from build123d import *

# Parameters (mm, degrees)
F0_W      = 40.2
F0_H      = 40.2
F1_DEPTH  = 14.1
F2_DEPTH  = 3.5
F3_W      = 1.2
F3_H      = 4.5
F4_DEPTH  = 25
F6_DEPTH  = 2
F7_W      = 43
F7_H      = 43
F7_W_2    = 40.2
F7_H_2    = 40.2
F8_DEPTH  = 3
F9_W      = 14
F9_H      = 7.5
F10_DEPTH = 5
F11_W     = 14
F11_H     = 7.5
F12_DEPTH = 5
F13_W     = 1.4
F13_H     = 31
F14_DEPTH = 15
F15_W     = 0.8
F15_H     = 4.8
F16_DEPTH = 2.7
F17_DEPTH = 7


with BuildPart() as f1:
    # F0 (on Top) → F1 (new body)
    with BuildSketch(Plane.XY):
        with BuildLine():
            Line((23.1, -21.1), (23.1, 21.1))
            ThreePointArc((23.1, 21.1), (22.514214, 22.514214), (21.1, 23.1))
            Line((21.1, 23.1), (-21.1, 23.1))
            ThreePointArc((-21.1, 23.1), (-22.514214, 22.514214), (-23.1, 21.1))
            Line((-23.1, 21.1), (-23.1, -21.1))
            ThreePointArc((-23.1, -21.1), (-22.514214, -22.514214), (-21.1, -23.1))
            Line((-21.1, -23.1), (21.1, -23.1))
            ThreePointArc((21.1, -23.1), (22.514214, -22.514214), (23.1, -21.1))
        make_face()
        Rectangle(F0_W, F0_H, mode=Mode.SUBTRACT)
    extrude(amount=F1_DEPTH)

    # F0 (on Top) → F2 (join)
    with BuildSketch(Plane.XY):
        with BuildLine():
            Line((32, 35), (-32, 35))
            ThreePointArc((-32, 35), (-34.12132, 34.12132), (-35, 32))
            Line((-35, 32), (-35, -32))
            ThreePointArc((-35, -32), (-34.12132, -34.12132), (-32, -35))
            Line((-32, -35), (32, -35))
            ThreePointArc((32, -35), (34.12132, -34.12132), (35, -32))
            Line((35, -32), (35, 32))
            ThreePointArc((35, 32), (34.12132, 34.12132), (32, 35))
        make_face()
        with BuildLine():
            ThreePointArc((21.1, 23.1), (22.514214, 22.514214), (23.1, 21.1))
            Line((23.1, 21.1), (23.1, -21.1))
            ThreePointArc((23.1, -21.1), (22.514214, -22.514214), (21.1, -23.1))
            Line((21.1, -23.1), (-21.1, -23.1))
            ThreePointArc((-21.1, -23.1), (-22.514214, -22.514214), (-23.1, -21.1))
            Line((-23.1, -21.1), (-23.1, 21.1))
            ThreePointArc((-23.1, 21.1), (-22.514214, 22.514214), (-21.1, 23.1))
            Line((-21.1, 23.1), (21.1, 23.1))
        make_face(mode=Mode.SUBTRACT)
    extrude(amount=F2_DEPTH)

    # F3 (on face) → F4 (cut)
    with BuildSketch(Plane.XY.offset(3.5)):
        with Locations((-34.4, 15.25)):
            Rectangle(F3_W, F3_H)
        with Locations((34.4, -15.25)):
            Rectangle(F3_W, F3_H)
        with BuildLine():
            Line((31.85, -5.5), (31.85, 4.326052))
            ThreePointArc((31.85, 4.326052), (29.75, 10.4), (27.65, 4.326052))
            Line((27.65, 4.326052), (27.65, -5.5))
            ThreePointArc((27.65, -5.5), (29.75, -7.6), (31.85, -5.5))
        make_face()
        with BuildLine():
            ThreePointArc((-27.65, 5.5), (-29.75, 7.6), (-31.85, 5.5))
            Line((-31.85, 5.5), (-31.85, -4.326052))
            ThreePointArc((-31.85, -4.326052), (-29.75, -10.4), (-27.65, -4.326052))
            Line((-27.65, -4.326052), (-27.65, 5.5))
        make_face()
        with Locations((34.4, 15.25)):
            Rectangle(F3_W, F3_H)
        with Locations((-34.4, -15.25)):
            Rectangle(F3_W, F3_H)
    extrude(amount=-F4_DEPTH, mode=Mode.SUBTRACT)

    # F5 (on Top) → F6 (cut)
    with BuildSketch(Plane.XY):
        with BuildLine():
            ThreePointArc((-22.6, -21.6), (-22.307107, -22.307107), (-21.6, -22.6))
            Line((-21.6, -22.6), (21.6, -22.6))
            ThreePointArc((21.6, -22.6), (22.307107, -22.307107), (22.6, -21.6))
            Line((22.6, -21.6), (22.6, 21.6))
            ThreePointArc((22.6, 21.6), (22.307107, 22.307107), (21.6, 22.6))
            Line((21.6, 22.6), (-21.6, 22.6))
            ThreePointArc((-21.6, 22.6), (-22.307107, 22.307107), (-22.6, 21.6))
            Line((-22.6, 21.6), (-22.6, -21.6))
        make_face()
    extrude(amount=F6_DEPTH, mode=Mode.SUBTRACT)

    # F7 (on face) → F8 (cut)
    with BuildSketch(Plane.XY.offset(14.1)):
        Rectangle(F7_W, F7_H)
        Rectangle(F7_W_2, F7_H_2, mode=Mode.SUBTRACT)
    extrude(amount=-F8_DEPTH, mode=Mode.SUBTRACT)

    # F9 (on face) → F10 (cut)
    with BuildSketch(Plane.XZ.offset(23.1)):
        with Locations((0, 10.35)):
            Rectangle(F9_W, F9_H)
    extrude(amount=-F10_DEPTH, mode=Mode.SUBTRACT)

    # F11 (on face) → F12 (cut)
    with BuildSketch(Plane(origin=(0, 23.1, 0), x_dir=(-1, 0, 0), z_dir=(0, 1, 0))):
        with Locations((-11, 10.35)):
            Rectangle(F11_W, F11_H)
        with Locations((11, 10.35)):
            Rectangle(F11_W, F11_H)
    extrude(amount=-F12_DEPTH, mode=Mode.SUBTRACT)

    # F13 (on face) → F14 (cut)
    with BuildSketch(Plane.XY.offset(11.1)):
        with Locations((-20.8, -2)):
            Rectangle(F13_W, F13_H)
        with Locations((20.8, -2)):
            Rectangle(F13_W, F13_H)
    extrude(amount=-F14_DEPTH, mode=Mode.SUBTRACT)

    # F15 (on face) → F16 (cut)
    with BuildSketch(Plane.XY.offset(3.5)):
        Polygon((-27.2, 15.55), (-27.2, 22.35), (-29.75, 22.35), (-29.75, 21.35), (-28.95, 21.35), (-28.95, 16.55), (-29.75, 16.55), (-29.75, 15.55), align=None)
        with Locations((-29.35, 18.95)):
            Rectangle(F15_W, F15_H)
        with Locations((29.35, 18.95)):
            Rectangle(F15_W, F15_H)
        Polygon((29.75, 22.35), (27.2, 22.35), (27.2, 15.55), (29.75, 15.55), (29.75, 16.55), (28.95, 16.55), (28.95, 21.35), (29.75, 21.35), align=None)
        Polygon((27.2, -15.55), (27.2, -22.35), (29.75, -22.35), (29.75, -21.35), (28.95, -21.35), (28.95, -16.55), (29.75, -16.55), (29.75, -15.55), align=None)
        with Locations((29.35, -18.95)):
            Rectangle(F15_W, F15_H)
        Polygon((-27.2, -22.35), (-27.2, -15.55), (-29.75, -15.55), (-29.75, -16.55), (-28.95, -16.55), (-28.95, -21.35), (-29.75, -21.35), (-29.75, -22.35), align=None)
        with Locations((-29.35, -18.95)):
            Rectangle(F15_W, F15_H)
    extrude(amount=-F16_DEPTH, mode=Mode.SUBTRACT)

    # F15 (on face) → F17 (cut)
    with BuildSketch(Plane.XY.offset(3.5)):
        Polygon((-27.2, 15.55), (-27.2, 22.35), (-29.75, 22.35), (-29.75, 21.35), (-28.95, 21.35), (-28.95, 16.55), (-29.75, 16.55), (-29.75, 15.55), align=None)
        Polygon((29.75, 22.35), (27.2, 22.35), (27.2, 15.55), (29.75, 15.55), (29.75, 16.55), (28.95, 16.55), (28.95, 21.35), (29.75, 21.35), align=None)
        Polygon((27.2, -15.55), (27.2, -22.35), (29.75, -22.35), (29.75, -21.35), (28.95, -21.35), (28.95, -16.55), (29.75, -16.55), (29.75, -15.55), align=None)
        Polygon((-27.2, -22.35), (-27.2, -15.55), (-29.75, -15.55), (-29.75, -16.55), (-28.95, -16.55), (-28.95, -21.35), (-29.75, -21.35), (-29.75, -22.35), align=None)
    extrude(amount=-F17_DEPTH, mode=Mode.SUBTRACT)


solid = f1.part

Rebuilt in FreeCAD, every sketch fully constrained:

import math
import FreeCAD as App
import Part
import Sketcher
from FreeCAD import Vector
Q = App.Units.Quantity

doc = App.newDocument("Part")
params = doc.addObject("Spreadsheet::Sheet", "Params")
for row, (alias, value) in enumerate([
    ("sketch1_radius", "1.999999 mm"),
    ("sketch1_width", "42.2 mm"),
    ("sketch1_width2", "40.2 mm"),
    ("pad1_length", "14.1 mm"),
    ("sketch2_radius", "3.000001 mm"),
    ("sketch2_radius2", "1.999999 mm"),
    ("sketch2_width", "64 mm"),
    ("sketch2_width2", "42.2 mm"),
    ("pad2_length", "3.5 mm"),
    ("sketch3_radius", "3.4 mm"),
    ("sketch3_radius2", "2.1 mm"),
    ("sketch3_width", "1.2 mm"),
    ("sketch3_height", "4.5 mm"),
    ("pocket1_length", "25 mm"),
    ("sketch4_radius", "0.999999 mm"),
    ("sketch4_width", "43.2 mm"),
    ("pocket2_length", "2 mm"),
    ("sketch5_width", "43 mm"),
    ("sketch5_width2", "40.2 mm"),
    ("pocket3_length", "3 mm"),
    ("sketch6_width", "14 mm"),
    ("sketch6_height", "7.5 mm"),
    ("pocket4_length", "5 mm"),
    ("sketch7_width", "14 mm"),
    ("sketch7_height", "7.5 mm"),
    ("pocket5_length", "5 mm"),
    ("sketch8_height", "31 mm"),
    ("sketch8_width", "1.4 mm"),
    ("pocket6_length", "15 mm"),
    ("sketch9_height", "6.8 mm"),
    ("sketch9_width", "2.55 mm"),
    ("pocket7_length", "2.7 mm"),
    ("sketch10_height", "1 mm"),
    ("sketch10_width", "0.8 mm"),
    ("sketch10_height2", "6.8 mm"),
    ("sketch10_width2", "2.55 mm"),
    ("pocket8_length", "7 mm"),
], start=1):
    params.set(f"A{row}", alias)
    params.set(f"B{row}", "=" + value)
    params.setAlias(f"B{row}", alias)

body = doc.addObject("PartDesign::Body", "Body")

sketch1 = body.newObject("Sketcher::SketchObject", "Sketch")
sketch1.AttachmentSupport = (doc.getObject("XY_Plane"), [""])
sketch1.MapMode = "FlatFace"
sketch1.addGeometry([
    Part.LineSegment(Vector(23.1, -21.1, 0), Vector(23.1, 21.1, 0)),
    Part.ArcOfCircle(Part.Circle(Vector(21.1, 21.1, 0), Vector(0, 0, 1), 2), math.radians(0), math.radians(90)),
    Part.LineSegment(Vector(21.1, 23.1, 0), Vector(-21.1, 23.1, 0)),
    Part.ArcOfCircle(Part.Circle(Vector(-21.1, 21.1, 0), Vector(0, 0, 1), 2), math.radians(90), math.radians(180)),
    Part.LineSegment(Vector(-23.1, 21.1, 0), Vector(-23.1, -21.1, 0)),
    Part.ArcOfCircle(Part.Circle(Vector(-21.1, -21.1, 0), Vector(0, 0, 1), 2), math.radians(180), math.radians(270)),
    Part.LineSegment(Vector(-21.1, -23.1, 0), Vector(21.1, -23.1, 0)),
    Part.ArcOfCircle(Part.Circle(Vector(21.1, -21.1, 0), Vector(0, 0, 1), 2), math.radians(-90), math.radians(0)),
    Part.LineSegment(Vector(20.1, -20.1, 0), Vector(-20.1, -20.1, 0)),
    Part.LineSegment(Vector(-20.1, -20.1, 0), Vector(-20.1, 20.1, 0)),
    Part.LineSegment(Vector(-20.1, 20.1, 0), Vector(20.1, 20.1, 0)),
    Part.LineSegment(Vector(20.1, 20.1, 0), Vector(20.1, -20.1, 0)),
], False)
sketch1.addConstraint([
    Sketcher.Constraint("Tangent", 0, 2, 1, 1),
    Sketcher.Constraint("Tangent", 1, 2, 2, 1),
    Sketcher.Constraint("Tangent", 2, 2, 3, 1),
    Sketcher.Constraint("Tangent", 3, 2, 4, 1),
    Sketcher.Constraint("Tangent", 4, 2, 5, 1),
    Sketcher.Constraint("Tangent", 5, 2, 6, 1),
    Sketcher.Constraint("Tangent", 6, 2, 7, 1),
    Sketcher.Constraint("Tangent", 7, 2, 0, 1),
    Sketcher.Constraint("Coincident", 8, 2, 9, 1),
    Sketcher.Constraint("Coincident", 9, 2, 10, 1),
    Sketcher.Constraint("Coincident", 10, 2, 11, 1),
    Sketcher.Constraint("Coincident", 11, 2, 8, 1),
    Sketcher.Constraint("Vertical", 0),
    Sketcher.Constraint("Horizontal", 2),
    Sketcher.Constraint("Vertical", 4),
    Sketcher.Constraint("Horizontal", 6),
    Sketcher.Constraint("Horizontal", 8),
    Sketcher.Constraint("Vertical", 9),
    Sketcher.Constraint("Horizontal", 10),
    Sketcher.Constraint("Vertical", 11),
    Sketcher.Constraint("Equal", 1, 3),
    Sketcher.Constraint("Equal", 3, 5),
    Sketcher.Constraint("Equal", 5, 7),
    Sketcher.Constraint("Symmetric", 1, 3, 5, 3, -1, 1),
    Sketcher.Constraint("Symmetric", 8, 2, 10, 2, -1, 1),
    Sketcher.Constraint("Equal", 6, 0),
    Sketcher.Constraint("Equal", 10, 9),
    Sketcher.Constraint("Radius", 1, Q("1.999999 mm")),
    Sketcher.Constraint("DistanceX", 2, 2, 2, 1, Q("42.2 mm")),
    Sketcher.Constraint("DistanceX", 8, 2, 8, 1, Q("40.2 mm")),
])
sketch1.setExpression("Constraints[27]", "Params.sketch1_radius")
sketch1.setExpression("Constraints[28]", "Params.sketch1_width")
sketch1.setExpression("Constraints[29]", "Params.sketch1_width2")
pad1 = body.newObject("PartDesign::Pad", "Pad")
pad1.Profile = sketch1
pad1.setExpression("Length", "Params.pad1_length")

sketch2 = body.newObject("Sketcher::SketchObject", "Sketch001")
sketch2.AttachmentSupport = (doc.getObject("XY_Plane"), [""])
sketch2.MapMode = "FlatFace"
sketch2.addGeometry([
    Part.LineSegment(Vector(32, 35, 0), Vector(-32, 35, 0)),
    Part.ArcOfCircle(Part.Circle(Vector(-32, 32, 0), Vector(0, 0, 1), 3), math.radians(90), math.radians(180)),
    Part.LineSegment(Vector(-35, 32, 0), Vector(-35, -32, 0)),
    Part.ArcOfCircle(Part.Circle(Vector(-32, -32, 0), Vector(0, 0, 1), 3), math.radians(-180), math.radians(-90)),
    Part.LineSegment(Vector(-32, -35, 0), Vector(32, -35, 0)),
    Part.ArcOfCircle(Part.Circle(Vector(32, -32, 0), Vector(0, 0, 1), 3), math.radians(-90), math.radians(0)),
    Part.LineSegment(Vector(35, -32, 0), Vector(35, 32, 0)),
    Part.ArcOfCircle(Part.Circle(Vector(32, 32, 0), Vector(0, 0, 1), 3), math.radians(0), math.radians(90)),
    Part.LineSegment(Vector(-21.1, 23.1, 0), Vector(21.1, 23.1, 0)),
    Part.ArcOfCircle(Part.Circle(Vector(21.1, 21.1, 0), Vector(0, 0, 1), 2), math.radians(0), math.radians(90)),
    Part.LineSegment(Vector(23.1, 21.1, 0), Vector(23.1, -21.1, 0)),
    Part.ArcOfCircle(Part.Circle(Vector(21.1, -21.1, 0), Vector(0, 0, 1), 2), math.radians(-90), math.radians(0)),
    Part.LineSegment(Vector(21.1, -23.1, 0), Vector(-21.1, -23.1, 0)),
    Part.ArcOfCircle(Part.Circle(Vector(-21.1, -21.1, 0), Vector(0, 0, 1), 2), math.radians(180), math.radians(270)),
    Part.LineSegment(Vector(-23.1, -21.1, 0), Vector(-23.1, 21.1, 0)),
    Part.ArcOfCircle(Part.Circle(Vector(-21.1, 21.1, 0), Vector(0, 0, 1), 2), math.radians(90), math.radians(180)),
], False)
sketch2.addConstraint([
    Sketcher.Constraint("Tangent", 0, 2, 1, 1),
    Sketcher.Constraint("Tangent", 1, 2, 2, 1),
    Sketcher.Constraint("Tangent", 2, 2, 3, 1),
    Sketcher.Constraint("Tangent", 3, 2, 4, 1),
    Sketcher.Constraint("Tangent", 4, 2, 5, 1),
    Sketcher.Constraint("Tangent", 5, 2, 6, 1),
    Sketcher.Constraint("Tangent", 6, 2, 7, 1),
    Sketcher.Constraint("Tangent", 7, 2, 0, 1),
    Sketcher.Constraint("Tangent", 8, 2, 9, 2),
    Sketcher.Constraint("Tangent", 9, 1, 10, 1),
    Sketcher.Constraint("Tangent", 10, 2, 11, 2),
    Sketcher.Constraint("Tangent", 11, 1, 12, 1),
    Sketcher.Constraint("Tangent", 12, 2, 13, 2),
    Sketcher.Constraint("Tangent", 13, 1, 14, 1),
    Sketcher.Constraint("Tangent", 14, 2, 15, 2),
    Sketcher.Constraint("Tangent", 15, 1, 8, 1),
    Sketcher.Constraint("Horizontal", 0),
    Sketcher.Constraint("Vertical", 2),
    Sketcher.Constraint("Horizontal", 4),
    Sketcher.Constraint("Vertical", 6),
    Sketcher.Constraint("Horizontal", 8),
    Sketcher.Constraint("Vertical", 10),
    Sketcher.Constraint("Horizontal", 12),
    Sketcher.Constraint("Vertical", 14),
    Sketcher.Constraint("Equal", 1, 3),
    Sketcher.Constraint("Equal", 3, 5),
    Sketcher.Constraint("Equal", 5, 7),
    Sketcher.Constraint("Equal", 9, 11),
    Sketcher.Constraint("Equal", 11, 13),
    Sketcher.Constraint("Equal", 13, 15),
    Sketcher.Constraint("Symmetric", 1, 3, 5, 3, -1, 1),
    Sketcher.Constraint("Symmetric", 9, 3, 13, 3, -1, 1),
    Sketcher.Constraint("Equal", 4, 2),
    Sketcher.Constraint("Equal", 12, 10),
    Sketcher.Constraint("Radius", 1, Q("3.000001 mm")),
    Sketcher.Constraint("Radius", 9, Q("1.999999 mm")),
    Sketcher.Constraint("DistanceX", 0, 2, 0, 1, Q("64 mm")),
    Sketcher.Constraint("DistanceX", 8, 1, 8, 2, Q("42.2 mm")),
])
sketch2.setExpression("Constraints[34]", "Params.sketch2_radius")
sketch2.setExpression("Constraints[35]", "Params.sketch2_radius2")
sketch2.setExpression("Constraints[36]", "Params.sketch2_width")
sketch2.setExpression("Constraints[37]", "Params.sketch2_width2")
pad2 = body.newObject("PartDesign::Pad", "Pad001")
pad2.Profile = sketch2
pad2.setExpression("Length", "Params.pad2_length")

sketch3 = body.newObject("Sketcher::SketchObject", "Sketch002")
sketch3.AttachmentSupport = (doc.getObject("XY_Plane"), [""])
sketch3.MapMode = "FlatFace"
sketch3.AttachmentOffset = App.Placement(Vector(0, 0, 3.5), App.Rotation())
sketch3.addGeometry([
    Part.LineSegment(Vector(-35, 17.5, 0), Vector(-35, 13, 0)),
    Part.LineSegment(Vector(-35, 13, 0), Vector(-33.8, 13, 0)),
    Part.LineSegment(Vector(-33.8, 13, 0), Vector(-33.8, 17.5, 0)),
    Part.LineSegment(Vector(-33.8, 17.5, 0), Vector(-35, 17.5, 0)),
    Part.LineSegment(Vector(33.8, -13, 0), Vector(33.8, -17.5, 0)),
    Part.LineSegment(Vector(33.8, -17.5, 0), Vector(35, -17.5, 0)),
    Part.LineSegment(Vector(35, -17.5, 0), Vector(35, -13, 0)),
    Part.LineSegment(Vector(35, -13, 0), Vector(33.8, -13, 0)),
    Part.LineSegment(Vector(31.9, -5.5, 0), Vector(31.9, 4.3, 0)),
    Part.ArcOfCircle(Part.Circle(Vector(29.8, 7, 0), Vector(0, 0, 1), 3.4), math.radians(-52), math.radians(232)),
    Part.LineSegment(Vector(27.6, 4.3, 0), Vector(27.6, -5.5, 0)),
    Part.ArcOfCircle(Part.Circle(Vector(29.8, -5.5, 0), Vector(0, 0, 1), 2.1), math.radians(180), math.radians(360)),
    Part.ArcOfCircle(Part.Circle(Vector(-29.8, 5.5, 0), Vector(0, 0, 1), 2.1), math.radians(0), math.radians(180)),
    Part.LineSegment(Vector(-31.9, 5.5, 0), Vector(-31.9, -4.3, 0)),
    Part.ArcOfCircle(Part.Circle(Vector(-29.8, -7, 0), Vector(0, 0, 1), 3.4), math.radians(128), math.radians(412)),
    Part.LineSegment(Vector(-27.6, -4.3, 0), Vector(-27.6, 5.5, 0)),
    Part.LineSegment(Vector(33.8, 17.5, 0), Vector(33.8, 13, 0)),
    Part.LineSegment(Vector(33.8, 13, 0), Vector(35, 13, 0)),
    Part.LineSegment(Vector(35, 13, 0), Vector(35, 17.5, 0)),
    Part.LineSegment(Vector(35, 17.5, 0), Vector(33.8, 17.5, 0)),
    Part.LineSegment(Vector(-35, -13, 0), Vector(-35, -17.5, 0)),
    Part.LineSegment(Vector(-35, -17.5, 0), Vector(-33.8, -17.5, 0)),
    Part.LineSegment(Vector(-33.8, -17.5, 0), Vector(-33.8, -13, 0)),
    Part.LineSegment(Vector(-33.8, -13, 0), Vector(-35, -13, 0)),
], False)
sketch3.addConstraint([
    Sketcher.Constraint("Coincident", 0, 2, 1, 1),
    Sketcher.Constraint("Coincident", 1, 2, 2, 1),
    Sketcher.Constraint("Coincident", 2, 2, 3, 1),
    Sketcher.Constraint("Coincident", 3, 2, 0, 1),
    Sketcher.Constraint("Coincident", 4, 2, 5, 1),
    Sketcher.Constraint("Coincident", 5, 2, 6, 1),
    Sketcher.Constraint("Coincident", 6, 2, 7, 1),
    Sketcher.Constraint("Coincident", 7, 2, 4, 1),
    Sketcher.Constraint("Coincident", 8, 2, 9, 1),
    Sketcher.Constraint("Coincident", 9, 2, 10, 1),
    Sketcher.Constraint("Tangent", 10, 2, 11, 1),
    Sketcher.Constraint("Tangent", 11, 2, 8, 1),
    Sketcher.Constraint("Tangent", 12, 2, 13, 1),
    Sketcher.Constraint("Coincident", 13, 2, 14, 1),
    Sketcher.Constraint("Coincident", 14, 2, 15, 1),
    Sketcher.Constraint("Tangent", 15, 2, 12, 1),
    Sketcher.Constraint("Coincident", 16, 2, 17, 1),
    Sketcher.Constraint("Coincident", 17, 2, 18, 1),
    Sketcher.Constraint("Coincident", 18, 2, 19, 1),
    Sketcher.Constraint("Coincident", 19, 2, 16, 1),
    Sketcher.Constraint("Coincident", 20, 2, 21, 1),
    Sketcher.Constraint("Coincident", 21, 2, 22, 1),
    Sketcher.Constraint("Coincident", 22, 2, 23, 1),
    Sketcher.Constraint("Coincident", 23, 2, 20, 1),
    Sketcher.Constraint("Vertical", 0),
    Sketcher.Constraint("Horizontal", 1),
    Sketcher.Constraint("Vertical", 2),
    Sketcher.Constraint("Horizontal", 3),
    Sketcher.Constraint("Vertical", 4),
    Sketcher.Constraint("Horizontal", 5),
    Sketcher.Constraint("Vertical", 6),
    Sketcher.Constraint("Horizontal", 7),
    Sketcher.Constraint("Vertical", 8),
    Sketcher.Constraint("Vertical", 10),
    Sketcher.Constraint("Vertical", 13),
    Sketcher.Constraint("Vertical", 15),
    Sketcher.Constraint("Vertical", 16),
    Sketcher.Constraint("Horizontal", 17),
    Sketcher.Constraint("Vertical", 18),
    Sketcher.Constraint("Horizontal", 19),
    Sketcher.Constraint("Vertical", 20),
    Sketcher.Constraint("Horizontal", 21),
    Sketcher.Constraint("Vertical", 22),
    Sketcher.Constraint("Horizontal", 23),
    Sketcher.Constraint("Equal", 11, 12),
    Sketcher.Constraint("Equal", 9, 14),
    Sketcher.Constraint("Symmetric", 11, 3, 12, 3, -1, 1),
    Sketcher.Constraint("Symmetric", 9, 3, 14, 3, -1, 1),
    Sketcher.Constraint("Symmetric", 2, 2, 4, 2, -1, 1),
    Sketcher.Constraint("Symmetric", 0, 2, 6, 2, -1, 1),
    Sketcher.Constraint("Symmetric", 18, 2, 20, 2, -1, 1),
    Sketcher.Constraint("Symmetric", 16, 2, 22, 2, -1, 1),
    Sketcher.Constraint("Symmetric", 1, 2, 16, 2, -2),
    Sketcher.Constraint("Symmetric", 3, 2, 18, 2, -2),
    Sketcher.Constraint("Horizontal", 8, 2, 9, 2),
    Sketcher.Constraint("Radius", 9, Q("3.4 mm")),
    Sketcher.Constraint("Radius", 11, Q("2.1 mm")),
    Sketcher.Constraint("DistanceX", 1, 1, 1, 2, Q("1.2 mm")),
    Sketcher.Constraint("DistanceY", 0, 2, 0, 1, Q("4.5 mm")),
    Sketcher.Constraint("DistanceY", -1, 1, 9, 3, Q("7 mm")),
    Sketcher.Constraint("DistanceX", 0, 2, -1, 1, Q("35 mm")),
    Sketcher.Constraint("DistanceY", -1, 1, 0, 2, Q("13 mm")),
    Sketcher.Constraint("DistanceY", 11, 3, 12, 3, Q("11 mm")),
    Sketcher.Constraint("DistanceX", 12, 3, 9, 3, Q("59.5 mm")),
])
sketch3.setExpression("Constraints[55]", "Params.sketch3_radius")
sketch3.setExpression("Constraints[56]", "Params.sketch3_radius2")
sketch3.setExpression("Constraints[57]", "Params.sketch3_width")
sketch3.setExpression("Constraints[58]", "Params.sketch3_height")
pocket1 = body.newObject("PartDesign::Pocket", "Pocket")
pocket1.Profile = sketch3
pocket1.setExpression("Length", "Params.pocket1_length")

sketch4 = body.newObject("Sketcher::SketchObject", "Sketch003")
sketch4.AttachmentSupport = (doc.getObject("XY_Plane"), [""])
sketch4.MapMode = "FlatFace"
sketch4.addGeometry([
    Part.ArcOfCircle(Part.Circle(Vector(-21.6, -21.6, 0), Vector(0, 0, 1), 1), math.radians(180), math.radians(270)),
    Part.LineSegment(Vector(-21.6, -22.6, 0), Vector(21.6, -22.6, 0)),
    Part.ArcOfCircle(Part.Circle(Vector(21.6, -21.6, 0), Vector(0, 0, 1), 1), math.radians(-90), math.radians(0)),
    Part.LineSegment(Vector(22.6, -21.6, 0), Vector(22.6, 21.6, 0)),
    Part.ArcOfCircle(Part.Circle(Vector(21.6, 21.6, 0), Vector(0, 0, 1), 1), math.radians(0), math.radians(90)),
    Part.LineSegment(Vector(21.6, 22.6, 0), Vector(-21.6, 22.6, 0)),
    Part.ArcOfCircle(Part.Circle(Vector(-21.6, 21.6, 0), Vector(0, 0, 1), 1), math.radians(90), math.radians(180)),
    Part.LineSegment(Vector(-22.6, 21.6, 0), Vector(-22.6, -21.6, 0)),
], False)
sketch4.addConstraint([
    Sketcher.Constraint("Tangent", 0, 2, 1, 1),
    Sketcher.Constraint("Tangent", 1, 2, 2, 1),
    Sketcher.Constraint("Tangent", 2, 2, 3, 1),
    Sketcher.Constraint("Tangent", 3, 2, 4, 1),
    Sketcher.Constraint("Tangent", 4, 2, 5, 1),
    Sketcher.Constraint("Tangent", 5, 2, 6, 1),
    Sketcher.Constraint("Tangent", 6, 2, 7, 1),
    Sketcher.Constraint("Tangent", 7, 2, 0, 1),
    Sketcher.Constraint("Horizontal", 1),
    Sketcher.Constraint("Vertical", 3),
    Sketcher.Constraint("Horizontal", 5),
    Sketcher.Constraint("Vertical", 7),
    Sketcher.Constraint("Equal", 0, 2),
    Sketcher.Constraint("Equal", 2, 4),
    Sketcher.Constraint("Equal", 4, 6),
    Sketcher.Constraint("Symmetric", 0, 3, 4, 3, -1, 1),
    Sketcher.Constraint("Equal", 5, 3),
    Sketcher.Constraint("Radius", 0, Q("0.999999 mm")),
    Sketcher.Constraint("DistanceX", 1, 1, 1, 2, Q("43.2 mm")),
])
sketch4.setExpression("Constraints[17]", "Params.sketch4_radius")
sketch4.setExpression("Constraints[18]", "Params.sketch4_width")
pocket2 = body.newObject("PartDesign::Pocket", "Pocket001")
pocket2.Profile = sketch4
pocket2.setExpression("Length", "Params.pocket2_length")
pocket2.Reversed = True

sketch5 = body.newObject("Sketcher::SketchObject", "Sketch004")
sketch5.AttachmentSupport = (doc.getObject("XY_Plane"), [""])
sketch5.MapMode = "FlatFace"
sketch5.AttachmentOffset = App.Placement(Vector(0, 0, 14.1), App.Rotation())
sketch5.addGeometry([
    Part.LineSegment(Vector(-22, 22, 0), Vector(-22, -22, 0)),
    Part.LineSegment(Vector(-22, -22, 0), Vector(22, -22, 0)),
    Part.LineSegment(Vector(22, -22, 0), Vector(22, 22, 0)),
    Part.LineSegment(Vector(22, 22, 0), Vector(-22, 22, 0)),
    Part.LineSegment(Vector(20, -20, 0), Vector(-20, -20, 0)),
    Part.LineSegment(Vector(-20, -20, 0), Vector(-20, 20, 0)),
    Part.LineSegment(Vector(-20, 20, 0), Vector(20, 20, 0)),
    Part.LineSegment(Vector(20, 20, 0), Vector(20, -20, 0)),
], False)
sketch5.addConstraint([
    Sketcher.Constraint("Coincident", 0, 2, 1, 1),
    Sketcher.Constraint("Coincident", 1, 2, 2, 1),
    Sketcher.Constraint("Coincident", 2, 2, 3, 1),
    Sketcher.Constraint("Coincident", 3, 2, 0, 1),
    Sketcher.Constraint("Coincident", 4, 2, 5, 1),
    Sketcher.Constraint("Coincident", 5, 2, 6, 1),
    Sketcher.Constraint("Coincident", 6, 2, 7, 1),
    Sketcher.Constraint("Coincident", 7, 2, 4, 1),
    Sketcher.Constraint("Vertical", 0),
    Sketcher.Constraint("Horizontal", 1),
    Sketcher.Constraint("Vertical", 2),
    Sketcher.Constraint("Horizontal", 3),
    Sketcher.Constraint("Horizontal", 4),
    Sketcher.Constraint("Vertical", 5),
    Sketcher.Constraint("Horizontal", 6),
    Sketcher.Constraint("Vertical", 7),
    Sketcher.Constraint("Symmetric", 0, 2, 2, 2, -1, 1),
    Sketcher.Constraint("Symmetric", 4, 2, 6, 2, -1, 1),
    Sketcher.Constraint("Equal", 3, 0),
    Sketcher.Constraint("Equal", 6, 5),
    Sketcher.Constraint("DistanceX", 1, 1, 1, 2, Q("43 mm")),
    Sketcher.Constraint("DistanceX", 4, 2, 4, 1, Q("40.2 mm")),
])
sketch5.setExpression("Constraints[20]", "Params.sketch5_width")
sketch5.setExpression("Constraints[21]", "Params.sketch5_width2")
pocket3 = body.newObject("PartDesign::Pocket", "Pocket002")
pocket3.Profile = sketch5
pocket3.setExpression("Length", "Params.pocket3_length")

sketch6 = body.newObject("Sketcher::SketchObject", "Sketch005")
sketch6.AttachmentSupport = (doc.getObject("XZ_Plane"), [""])
sketch6.MapMode = "FlatFace"
sketch6.AttachmentOffset = App.Placement(Vector(0, 0, 23.1), App.Rotation())
sketch6.addGeometry([
    Part.LineSegment(Vector(-7, 14, 0), Vector(-7, 7, 0)),
    Part.LineSegment(Vector(-7, 7, 0), Vector(7, 7, 0)),
    Part.LineSegment(Vector(7, 7, 0), Vector(7, 14, 0)),
    Part.LineSegment(Vector(7, 14, 0), Vector(-7, 14, 0)),
], False)
sketch6.addConstraint([
    Sketcher.Constraint("Coincident", 0, 2, 1, 1),
    Sketcher.Constraint("Coincident", 1, 2, 2, 1),
    Sketcher.Constraint("Coincident", 2, 2, 3, 1),
    Sketcher.Constraint("Coincident", 3, 2, 0, 1),
    Sketcher.Constraint("Vertical", 0),
    Sketcher.Constraint("Horizontal", 1),
    Sketcher.Constraint("Vertical", 2),
    Sketcher.Constraint("Horizontal", 3),
    Sketcher.Constraint("DistanceX", 1, 1, 1, 2, Q("14 mm")),
    Sketcher.Constraint("DistanceY", 0, 2, 0, 1, Q("7.5 mm")),
    Sketcher.Constraint("DistanceX", 0, 2, -1, 1, Q("7 mm")),
    Sketcher.Constraint("DistanceY", -1, 1, 0, 2, Q("6.6 mm")),
])
sketch6.setExpression("Constraints[8]", "Params.sketch6_width")
sketch6.setExpression("Constraints[9]", "Params.sketch6_height")
pocket4 = body.newObject("PartDesign::Pocket", "Pocket003")
pocket4.Profile = sketch6
pocket4.setExpression("Length", "Params.pocket4_length")

sketch7 = body.newObject("Sketcher::SketchObject", "Sketch006")
sketch7.AttachmentSupport = (doc.getObject("XZ_Plane"), [""])
sketch7.MapMode = "FlatFace"
sketch7.AttachmentOffset = App.Placement(Vector(0, 0, -23.1), App.Rotation())
sketch7.addGeometry([
    Part.LineSegment(Vector(18, 14, 0), Vector(18, 7, 0)),
    Part.LineSegment(Vector(18, 7, 0), Vector(4, 7, 0)),
    Part.LineSegment(Vector(4, 7, 0), Vector(4, 14, 0)),
    Part.LineSegment(Vector(4, 14, 0), Vector(18, 14, 0)),
    Part.LineSegment(Vector(-4, 14, 0), Vector(-4, 7, 0)),
    Part.LineSegment(Vector(-4, 7, 0), Vector(-18, 7, 0)),
    Part.LineSegment(Vector(-18, 7, 0), Vector(-18, 14, 0)),
    Part.LineSegment(Vector(-18, 14, 0), Vector(-4, 14, 0)),
], False)
sketch7.addConstraint([
    Sketcher.Constraint("Coincident", 0, 2, 1, 1),
    Sketcher.Constraint("Coincident", 1, 2, 2, 1),
    Sketcher.Constraint("Coincident", 2, 2, 3, 1),
    Sketcher.Constraint("Coincident", 3, 2, 0, 1),
    Sketcher.Constraint("Coincident", 4, 2, 5, 1),
    Sketcher.Constraint("Coincident", 5, 2, 6, 1),
    Sketcher.Constraint("Coincident", 6, 2, 7, 1),
    Sketcher.Constraint("Coincident", 7, 2, 4, 1),
    Sketcher.Constraint("Vertical", 0),
    Sketcher.Constraint("Horizontal", 1),
    Sketcher.Constraint("Vertical", 2),
    Sketcher.Constraint("Horizontal", 3),
    Sketcher.Constraint("Vertical", 4),
    Sketcher.Constraint("Horizontal", 5),
    Sketcher.Constraint("Vertical", 6),
    Sketcher.Constraint("Horizontal", 7),
    Sketcher.Constraint("Symmetric", 1, 2, 4, 2, -2),
    Sketcher.Constraint("Symmetric", 3, 2, 6, 2, -2),
    Sketcher.Constraint("DistanceX", 1, 2, 1, 1, Q("14 mm")),
    Sketcher.Constraint("DistanceY", 0, 2, 0, 1, Q("7.5 mm")),
    Sketcher.Constraint("DistanceX", -1, 1, 0, 2, Q("18 mm")),
    Sketcher.Constraint("DistanceY", -1, 1, 0, 2, Q("6.6 mm")),
])
sketch7.setExpression("Constraints[18]", "Params.sketch7_width")
sketch7.setExpression("Constraints[19]", "Params.sketch7_height")
pocket5 = body.newObject("PartDesign::Pocket", "Pocket004")
pocket5.Profile = sketch7
pocket5.setExpression("Length", "Params.pocket5_length")
pocket5.Reversed = True

sketch8 = body.newObject("Sketcher::SketchObject", "Sketch007")
sketch8.AttachmentSupport = (doc.getObject("XY_Plane"), [""])
sketch8.MapMode = "FlatFace"
sketch8.AttachmentOffset = App.Placement(Vector(0, 0, 11.1), App.Rotation())
sketch8.addGeometry([
    Part.LineSegment(Vector(-21.5, 13.5, 0), Vector(-21.5, -17.5, 0)),
    Part.LineSegment(Vector(-21.5, -17.5, 0), Vector(-20.1, -17.5, 0)),
    Part.LineSegment(Vector(-20.1, -17.5, 0), Vector(-20.1, 13.5, 0)),
    Part.LineSegment(Vector(-20.1, 13.5, 0), Vector(-21.5, 13.5, 0)),
    Part.LineSegment(Vector(20.1, 13.5, 0), Vector(20.1, -17.5, 0)),
    Part.LineSegment(Vector(20.1, -17.5, 0), Vector(21.5, -17.5, 0)),
    Part.LineSegment(Vector(21.5, -17.5, 0), Vector(21.5, 13.5, 0)),
    Part.LineSegment(Vector(21.5, 13.5, 0), Vector(20.1, 13.5, 0)),
], False)
sketch8.addConstraint([
    Sketcher.Constraint("Coincident", 0, 2, 1, 1),
    Sketcher.Constraint("Coincident", 1, 2, 2, 1),
    Sketcher.Constraint("Coincident", 2, 2, 3, 1),
    Sketcher.Constraint("Coincident", 3, 2, 0, 1),
    Sketcher.Constraint("Coincident", 4, 2, 5, 1),
    Sketcher.Constraint("Coincident", 5, 2, 6, 1),
    Sketcher.Constraint("Coincident", 6, 2, 7, 1),
    Sketcher.Constraint("Coincident", 7, 2, 4, 1),
    Sketcher.Constraint("Vertical", 0),
    Sketcher.Constraint("Horizontal", 1),
    Sketcher.Constraint("Vertical", 2),
    Sketcher.Constraint("Horizontal", 3),
    Sketcher.Constraint("Vertical", 4),
    Sketcher.Constraint("Horizontal", 5),
    Sketcher.Constraint("Vertical", 6),
    Sketcher.Constraint("Horizontal", 7),
    Sketcher.Constraint("Symmetric", 1, 2, 4, 2, -2),
    Sketcher.Constraint("Symmetric", 3, 2, 6, 2, -2),
    Sketcher.Constraint("DistanceY", 0, 2, 0, 1, Q("31 mm")),
    Sketcher.Constraint("DistanceX", 1, 1, 1, 2, Q("1.4 mm")),
    Sketcher.Constraint("DistanceX", 0, 2, 5, 2, Q("43 mm")),
    Sketcher.Constraint("DistanceY", 0, 2, -1, 1, Q("17.5 mm")),
])
sketch8.setExpression("Constraints[18]", "Params.sketch8_height")
sketch8.setExpression("Constraints[19]", "Params.sketch8_width")
pocket6 = body.newObject("PartDesign::Pocket", "Pocket005")
pocket6.Profile = sketch8
pocket6.setExpression("Length", "Params.pocket6_length")

sketch9 = body.newObject("Sketcher::SketchObject", "Sketch008")
sketch9.AttachmentSupport = (doc.getObject("XY_Plane"), [""])
sketch9.MapMode = "FlatFace"
sketch9.AttachmentOffset = App.Placement(Vector(0, 0, 3.5), App.Rotation())
sketch9.addGeometry([
    Part.LineSegment(Vector(-27.2, 15.6, 0), Vector(-27.2, 22.4, 0)),
    Part.LineSegment(Vector(-27.2, 22.4, 0), Vector(-29.8, 22.4, 0)),
    Part.LineSegment(Vector(-29.8, 22.4, 0), Vector(-29.8, 15.6, 0)),
    Part.LineSegment(Vector(-29.8, 15.6, 0), Vector(-27.2, 15.6, 0)),
    Part.LineSegment(Vector(29.8, 22.4, 0), Vector(27.2, 22.4, 0)),
    Part.LineSegment(Vector(27.2, 22.4, 0), Vector(27.2, 15.6, 0)),
    Part.LineSegment(Vector(27.2, 15.6, 0), Vector(29.8, 15.6, 0)),
    Part.LineSegment(Vector(29.8, 15.6, 0), Vector(29.8, 22.4, 0)),
    Part.LineSegment(Vector(27.2, -15.6, 0), Vector(27.2, -22.4, 0)),
    Part.LineSegment(Vector(27.2, -22.4, 0), Vector(29.8, -22.4, 0)),
    Part.LineSegment(Vector(29.8, -22.4, 0), Vector(29.8, -15.6, 0)),
    Part.LineSegment(Vector(29.8, -15.6, 0), Vector(27.2, -15.6, 0)),
    Part.LineSegment(Vector(-27.2, -22.4, 0), Vector(-27.2, -15.6, 0)),
    Part.LineSegment(Vector(-27.2, -15.6, 0), Vector(-29.8, -15.6, 0)),
    Part.LineSegment(Vector(-29.8, -15.6, 0), Vector(-29.8, -22.4, 0)),
    Part.LineSegment(Vector(-29.8, -22.4, 0), Vector(-27.2, -22.4, 0)),
], False)
sketch9.addConstraint([
    Sketcher.Constraint("Coincident", 0, 2, 1, 1),
    Sketcher.Constraint("Coincident", 1, 2, 2, 1),
    Sketcher.Constraint("Coincident", 2, 2, 3, 1),
    Sketcher.Constraint("Coincident", 3, 2, 0, 1),
    Sketcher.Constraint("Coincident", 4, 2, 5, 1),
    Sketcher.Constraint("Coincident", 5, 2, 6, 1),
    Sketcher.Constraint("Coincident", 6, 2, 7, 1),
    Sketcher.Constraint("Coincident", 7, 2, 4, 1),
    Sketcher.Constraint("Coincident", 8, 2, 9, 1),
    Sketcher.Constraint("Coincident", 9, 2, 10, 1),
    Sketcher.Constraint("Coincident", 10, 2, 11, 1),
    Sketcher.Constraint("Coincident", 11, 2, 8, 1),
    Sketcher.Constraint("Coincident", 12, 2, 13, 1),
    Sketcher.Constraint("Coincident", 13, 2, 14, 1),
    Sketcher.Constraint("Coincident", 14, 2, 15, 1),
    Sketcher.Constraint("Coincident", 15, 2, 12, 1),
    Sketcher.Constraint("Vertical", 0),
    Sketcher.Constraint("Horizontal", 1),
    Sketcher.Constraint("Vertical", 2),
    Sketcher.Constraint("Horizontal", 3),
    Sketcher.Constraint("Horizontal", 4),
    Sketcher.Constraint("Vertical", 5),
    Sketcher.Constraint("Horizontal", 6),
    Sketcher.Constraint("Vertical", 7),
    Sketcher.Constraint("Vertical", 8),
    Sketcher.Constraint("Horizontal", 9),
    Sketcher.Constraint("Vertical", 10),
    Sketcher.Constraint("Horizontal", 11),
    Sketcher.Constraint("Vertical", 12),
    Sketcher.Constraint("Horizontal", 13),
    Sketcher.Constraint("Vertical", 14),
    Sketcher.Constraint("Horizontal", 15),
    Sketcher.Constraint("Symmetric", 0, 2, 8, 2, -1, 1),
    Sketcher.Constraint("Symmetric", 2, 2, 10, 2, -1, 1),
    Sketcher.Constraint("Symmetric", 5, 2, 12, 2, -1, 1),
    Sketcher.Constraint("Symmetric", 7, 2, 14, 2, -1, 1),
    Sketcher.Constraint("Symmetric", 0, 2, 4, 2, -2),
    Sketcher.Constraint("Symmetric", 2, 2, 6, 2, -2),
    Sketcher.Constraint("DistanceY", 0, 1, 0, 2, Q("6.8 mm")),
    Sketcher.Constraint("DistanceX", 1, 2, 1, 1, Q("2.55 mm")),
    Sketcher.Constraint("DistanceX", 0, 2, -1, 1, Q("27.2 mm")),
    Sketcher.Constraint("DistanceY", 8, 2, 5, 2, Q("37.9 mm")),
])
sketch9.setExpression("Constraints[38]", "Params.sketch9_height")
sketch9.setExpression("Constraints[39]", "Params.sketch9_width")
pocket7 = body.newObject("PartDesign::Pocket", "Pocket006")
pocket7.Profile = sketch9
pocket7.setExpression("Length", "Params.pocket7_length")

sketch10 = body.newObject("Sketcher::SketchObject", "Sketch009")
sketch10.AttachmentSupport = (doc.getObject("XY_Plane"), [""])
sketch10.MapMode = "FlatFace"
sketch10.AttachmentOffset = App.Placement(Vector(0, 0, 3.5), App.Rotation())
sketch10.addGeometry([
    Part.LineSegment(Vector(-27.2, 15.6, 0), Vector(-27.2, 22.4, 0)),
    Part.LineSegment(Vector(-27.2, 22.4, 0), Vector(-29.8, 22.4, 0)),
    Part.LineSegment(Vector(-29.8, 22.4, 0), Vector(-29.8, 21.4, 0)),
    Part.LineSegment(Vector(-29.8, 21.4, 0), Vector(-28.9, 21.4, 0)),
    Part.LineSegment(Vector(-28.9, 21.4, 0), Vector(-28.9, 16.6, 0)),
    Part.LineSegment(Vector(-28.9, 16.6, 0), Vector(-29.8, 16.6, 0)),
    Part.LineSegment(Vector(-29.8, 16.6, 0), Vector(-29.8, 15.6, 0)),
    Part.LineSegment(Vector(-29.8, 15.6, 0), Vector(-27.2, 15.6, 0)),
    Part.LineSegment(Vector(29.8, 22.4, 0), Vector(27.2, 22.4, 0)),
    Part.LineSegment(Vector(27.2, 22.4, 0), Vector(27.2, 15.6, 0)),
    Part.LineSegment(Vector(27.2, 15.6, 0), Vector(29.8, 15.6, 0)),
    Part.LineSegment(Vector(29.8, 15.6, 0), Vector(29.8, 16.6, 0)),
    Part.LineSegment(Vector(29.8, 16.6, 0), Vector(28.9, 16.6, 0)),
    Part.LineSegment(Vector(28.9, 16.6, 0), Vector(28.9, 21.4, 0)),
    Part.LineSegment(Vector(28.9, 21.4, 0), Vector(29.8, 21.4, 0)),
    Part.LineSegment(Vector(29.8, 21.4, 0), Vector(29.8, 22.4, 0)),
    Part.LineSegment(Vector(27.2, -15.6, 0), Vector(27.2, -22.4, 0)),
    Part.LineSegment(Vector(27.2, -22.4, 0), Vector(29.8, -22.4, 0)),
    Part.LineSegment(Vector(29.8, -22.4, 0), Vector(29.8, -21.4, 0)),
    Part.LineSegment(Vector(29.8, -21.4, 0), Vector(28.9, -21.4, 0)),
    Part.LineSegment(Vector(28.9, -21.4, 0), Vector(28.9, -16.6, 0)),
    Part.LineSegment(Vector(28.9, -16.6, 0), Vector(29.8, -16.6, 0)),
    Part.LineSegment(Vector(29.8, -16.6, 0), Vector(29.8, -15.6, 0)),
    Part.LineSegment(Vector(29.8, -15.6, 0), Vector(27.2, -15.6, 0)),
    Part.LineSegment(Vector(-27.2, -22.4, 0), Vector(-27.2, -15.6, 0)),
    Part.LineSegment(Vector(-27.2, -15.6, 0), Vector(-29.8, -15.6, 0)),
    Part.LineSegment(Vector(-29.8, -15.6, 0), Vector(-29.8, -16.6, 0)),
    Part.LineSegment(Vector(-29.8, -16.6, 0), Vector(-28.9, -16.6, 0)),
    Part.LineSegment(Vector(-28.9, -16.6, 0), Vector(-28.9, -21.4, 0)),
    Part.LineSegment(Vector(-28.9, -21.4, 0), Vector(-29.8, -21.4, 0)),
    Part.LineSegment(Vector(-29.8, -21.4, 0), Vector(-29.8, -22.4, 0)),
    Part.LineSegment(Vector(-29.8, -22.4, 0), Vector(-27.2, -22.4, 0)),
], False)
sketch10.addConstraint([
    Sketcher.Constraint("Coincident", 0, 2, 1, 1),
    Sketcher.Constraint("Coincident", 1, 2, 2, 1),
    Sketcher.Constraint("Coincident", 2, 2, 3, 1),
    Sketcher.Constraint("Coincident", 3, 2, 4, 1),
    Sketcher.Constraint("Coincident", 4, 2, 5, 1),
    Sketcher.Constraint("Coincident", 5, 2, 6, 1),
    Sketcher.Constraint("Coincident", 6, 2, 7, 1),
    Sketcher.Constraint("Coincident", 7, 2, 0, 1),
    Sketcher.Constraint("Coincident", 8, 2, 9, 1),
    Sketcher.Constraint("Coincident", 9, 2, 10, 1),
    Sketcher.Constraint("Coincident", 10, 2, 11, 1),
    Sketcher.Constraint("Coincident", 11, 2, 12, 1),
    Sketcher.Constraint("Coincident", 12, 2, 13, 1),
    Sketcher.Constraint("Coincident", 13, 2, 14, 1),
    Sketcher.Constraint("Coincident", 14, 2, 15, 1),
    Sketcher.Constraint("Coincident", 15, 2, 8, 1),
    Sketcher.Constraint("Coincident", 16, 2, 17, 1),
    Sketcher.Constraint("Coincident", 17, 2, 18, 1),
    Sketcher.Constraint("Coincident", 18, 2, 19, 1),
    Sketcher.Constraint("Coincident", 19, 2, 20, 1),
    Sketcher.Constraint("Coincident", 20, 2, 21, 1),
    Sketcher.Constraint("Coincident", 21, 2, 22, 1),
    Sketcher.Constraint("Coincident", 22, 2, 23, 1),
    Sketcher.Constraint("Coincident", 23, 2, 16, 1),
    Sketcher.Constraint("Coincident", 24, 2, 25, 1),
    Sketcher.Constraint("Coincident", 25, 2, 26, 1),
    Sketcher.Constraint("Coincident", 26, 2, 27, 1),
    Sketcher.Constraint("Coincident", 27, 2, 28, 1),
    Sketcher.Constraint("Coincident", 28, 2, 29, 1),
    Sketcher.Constraint("Coincident", 29, 2, 30, 1),
    Sketcher.Constraint("Coincident", 30, 2, 31, 1),
    Sketcher.Constraint("Coincident", 31, 2, 24, 1),
    Sketcher.Constraint("Vertical", 0),
    Sketcher.Constraint("Horizontal", 1),
    Sketcher.Constraint("Vertical", 2),
    Sketcher.Constraint("Horizontal", 3),
    Sketcher.Constraint("Vertical", 4),
    Sketcher.Constraint("Horizontal", 5),
    Sketcher.Constraint("Vertical", 6),
    Sketcher.Constraint("Horizontal", 7),
    Sketcher.Constraint("Horizontal", 8),
    Sketcher.Constraint("Vertical", 9),
    Sketcher.Constraint("Horizontal", 10),
    Sketcher.Constraint("Vertical", 11),
    Sketcher.Constraint("Horizontal", 12),
    Sketcher.Constraint("Vertical", 13),
    Sketcher.Constraint("Horizontal", 14),
    Sketcher.Constraint("Vertical", 15),
    Sketcher.Constraint("Vertical", 16),
    Sketcher.Constraint("Horizontal", 17),
    Sketcher.Constraint("Vertical", 18),
    Sketcher.Constraint("Horizontal", 19),
    Sketcher.Constraint("Vertical", 20),
    Sketcher.Constraint("Horizontal", 21),
    Sketcher.Constraint("Vertical", 22),
    Sketcher.Constraint("Horizontal", 23),
    Sketcher.Constraint("Vertical", 24),
    Sketcher.Constraint("Horizontal", 25),
    Sketcher.Constraint("Vertical", 26),
    Sketcher.Constraint("Horizontal", 27),
    Sketcher.Constraint("Vertical", 28),
    Sketcher.Constraint("Horizontal", 29),
    Sketcher.Constraint("Vertical", 30),
    Sketcher.Constraint("Horizontal", 31),
    Sketcher.Constraint("Symmetric", 0, 2, 16, 2, -1, 1),
    Sketcher.Constraint("Symmetric", 2, 2, 18, 2, -1, 1),
    Sketcher.Constraint("Symmetric", 4, 2, 20, 2, -1, 1),
    Sketcher.Constraint("Symmetric", 6, 2, 22, 2, -1, 1),
    Sketcher.Constraint("Symmetric", 9, 2, 24, 2, -1, 1),
    Sketcher.Constraint("Symmetric", 11, 2, 26, 2, -1, 1),
    Sketcher.Constraint("Symmetric", 13, 2, 28, 2, -1, 1),
    Sketcher.Constraint("Symmetric", 15, 2, 30, 2, -1, 1),
    Sketcher.Constraint("Symmetric", 0, 2, 8, 2, -2),
    Sketcher.Constraint("Symmetric", 6, 2, 10, 2, -2),
    Sketcher.Constraint("Symmetric", 4, 2, 12, 2, -2),
    Sketcher.Constraint("Symmetric", 2, 2, 14, 2, -2),
    Sketcher.Constraint("Vertical", 2, 2, 5, 2),
    Sketcher.Constraint("Equal", 2, 6),
    Sketcher.Constraint("DistanceY", 2, 2, 2, 1, Q("1 mm")),
    Sketcher.Constraint("DistanceX", 3, 1, 3, 2, Q("0.8 mm")),
    Sketcher.Constraint("DistanceY", 0, 1, 0, 2, Q("6.8 mm")),
    Sketcher.Constraint("DistanceX", 1, 2, 1, 1, Q("2.55 mm")),
    Sketcher.Constraint("DistanceX", 0, 2, -1, 1, Q("27.2 mm")),
    Sketcher.Constraint("DistanceY", 16, 2, 9, 2, Q("37.9 mm")),
])
sketch10.setExpression("Constraints[78]", "Params.sketch10_height")
sketch10.setExpression("Constraints[79]", "Params.sketch10_width")
sketch10.setExpression("Constraints[80]", "Params.sketch10_height2")
sketch10.setExpression("Constraints[81]", "Params.sketch10_width2")
pocket8 = body.newObject("PartDesign::Pocket", "Pocket007")
pocket8.Profile = sketch10
pocket8.setExpression("Length", "Params.pocket8_length")

doc.recompute()
